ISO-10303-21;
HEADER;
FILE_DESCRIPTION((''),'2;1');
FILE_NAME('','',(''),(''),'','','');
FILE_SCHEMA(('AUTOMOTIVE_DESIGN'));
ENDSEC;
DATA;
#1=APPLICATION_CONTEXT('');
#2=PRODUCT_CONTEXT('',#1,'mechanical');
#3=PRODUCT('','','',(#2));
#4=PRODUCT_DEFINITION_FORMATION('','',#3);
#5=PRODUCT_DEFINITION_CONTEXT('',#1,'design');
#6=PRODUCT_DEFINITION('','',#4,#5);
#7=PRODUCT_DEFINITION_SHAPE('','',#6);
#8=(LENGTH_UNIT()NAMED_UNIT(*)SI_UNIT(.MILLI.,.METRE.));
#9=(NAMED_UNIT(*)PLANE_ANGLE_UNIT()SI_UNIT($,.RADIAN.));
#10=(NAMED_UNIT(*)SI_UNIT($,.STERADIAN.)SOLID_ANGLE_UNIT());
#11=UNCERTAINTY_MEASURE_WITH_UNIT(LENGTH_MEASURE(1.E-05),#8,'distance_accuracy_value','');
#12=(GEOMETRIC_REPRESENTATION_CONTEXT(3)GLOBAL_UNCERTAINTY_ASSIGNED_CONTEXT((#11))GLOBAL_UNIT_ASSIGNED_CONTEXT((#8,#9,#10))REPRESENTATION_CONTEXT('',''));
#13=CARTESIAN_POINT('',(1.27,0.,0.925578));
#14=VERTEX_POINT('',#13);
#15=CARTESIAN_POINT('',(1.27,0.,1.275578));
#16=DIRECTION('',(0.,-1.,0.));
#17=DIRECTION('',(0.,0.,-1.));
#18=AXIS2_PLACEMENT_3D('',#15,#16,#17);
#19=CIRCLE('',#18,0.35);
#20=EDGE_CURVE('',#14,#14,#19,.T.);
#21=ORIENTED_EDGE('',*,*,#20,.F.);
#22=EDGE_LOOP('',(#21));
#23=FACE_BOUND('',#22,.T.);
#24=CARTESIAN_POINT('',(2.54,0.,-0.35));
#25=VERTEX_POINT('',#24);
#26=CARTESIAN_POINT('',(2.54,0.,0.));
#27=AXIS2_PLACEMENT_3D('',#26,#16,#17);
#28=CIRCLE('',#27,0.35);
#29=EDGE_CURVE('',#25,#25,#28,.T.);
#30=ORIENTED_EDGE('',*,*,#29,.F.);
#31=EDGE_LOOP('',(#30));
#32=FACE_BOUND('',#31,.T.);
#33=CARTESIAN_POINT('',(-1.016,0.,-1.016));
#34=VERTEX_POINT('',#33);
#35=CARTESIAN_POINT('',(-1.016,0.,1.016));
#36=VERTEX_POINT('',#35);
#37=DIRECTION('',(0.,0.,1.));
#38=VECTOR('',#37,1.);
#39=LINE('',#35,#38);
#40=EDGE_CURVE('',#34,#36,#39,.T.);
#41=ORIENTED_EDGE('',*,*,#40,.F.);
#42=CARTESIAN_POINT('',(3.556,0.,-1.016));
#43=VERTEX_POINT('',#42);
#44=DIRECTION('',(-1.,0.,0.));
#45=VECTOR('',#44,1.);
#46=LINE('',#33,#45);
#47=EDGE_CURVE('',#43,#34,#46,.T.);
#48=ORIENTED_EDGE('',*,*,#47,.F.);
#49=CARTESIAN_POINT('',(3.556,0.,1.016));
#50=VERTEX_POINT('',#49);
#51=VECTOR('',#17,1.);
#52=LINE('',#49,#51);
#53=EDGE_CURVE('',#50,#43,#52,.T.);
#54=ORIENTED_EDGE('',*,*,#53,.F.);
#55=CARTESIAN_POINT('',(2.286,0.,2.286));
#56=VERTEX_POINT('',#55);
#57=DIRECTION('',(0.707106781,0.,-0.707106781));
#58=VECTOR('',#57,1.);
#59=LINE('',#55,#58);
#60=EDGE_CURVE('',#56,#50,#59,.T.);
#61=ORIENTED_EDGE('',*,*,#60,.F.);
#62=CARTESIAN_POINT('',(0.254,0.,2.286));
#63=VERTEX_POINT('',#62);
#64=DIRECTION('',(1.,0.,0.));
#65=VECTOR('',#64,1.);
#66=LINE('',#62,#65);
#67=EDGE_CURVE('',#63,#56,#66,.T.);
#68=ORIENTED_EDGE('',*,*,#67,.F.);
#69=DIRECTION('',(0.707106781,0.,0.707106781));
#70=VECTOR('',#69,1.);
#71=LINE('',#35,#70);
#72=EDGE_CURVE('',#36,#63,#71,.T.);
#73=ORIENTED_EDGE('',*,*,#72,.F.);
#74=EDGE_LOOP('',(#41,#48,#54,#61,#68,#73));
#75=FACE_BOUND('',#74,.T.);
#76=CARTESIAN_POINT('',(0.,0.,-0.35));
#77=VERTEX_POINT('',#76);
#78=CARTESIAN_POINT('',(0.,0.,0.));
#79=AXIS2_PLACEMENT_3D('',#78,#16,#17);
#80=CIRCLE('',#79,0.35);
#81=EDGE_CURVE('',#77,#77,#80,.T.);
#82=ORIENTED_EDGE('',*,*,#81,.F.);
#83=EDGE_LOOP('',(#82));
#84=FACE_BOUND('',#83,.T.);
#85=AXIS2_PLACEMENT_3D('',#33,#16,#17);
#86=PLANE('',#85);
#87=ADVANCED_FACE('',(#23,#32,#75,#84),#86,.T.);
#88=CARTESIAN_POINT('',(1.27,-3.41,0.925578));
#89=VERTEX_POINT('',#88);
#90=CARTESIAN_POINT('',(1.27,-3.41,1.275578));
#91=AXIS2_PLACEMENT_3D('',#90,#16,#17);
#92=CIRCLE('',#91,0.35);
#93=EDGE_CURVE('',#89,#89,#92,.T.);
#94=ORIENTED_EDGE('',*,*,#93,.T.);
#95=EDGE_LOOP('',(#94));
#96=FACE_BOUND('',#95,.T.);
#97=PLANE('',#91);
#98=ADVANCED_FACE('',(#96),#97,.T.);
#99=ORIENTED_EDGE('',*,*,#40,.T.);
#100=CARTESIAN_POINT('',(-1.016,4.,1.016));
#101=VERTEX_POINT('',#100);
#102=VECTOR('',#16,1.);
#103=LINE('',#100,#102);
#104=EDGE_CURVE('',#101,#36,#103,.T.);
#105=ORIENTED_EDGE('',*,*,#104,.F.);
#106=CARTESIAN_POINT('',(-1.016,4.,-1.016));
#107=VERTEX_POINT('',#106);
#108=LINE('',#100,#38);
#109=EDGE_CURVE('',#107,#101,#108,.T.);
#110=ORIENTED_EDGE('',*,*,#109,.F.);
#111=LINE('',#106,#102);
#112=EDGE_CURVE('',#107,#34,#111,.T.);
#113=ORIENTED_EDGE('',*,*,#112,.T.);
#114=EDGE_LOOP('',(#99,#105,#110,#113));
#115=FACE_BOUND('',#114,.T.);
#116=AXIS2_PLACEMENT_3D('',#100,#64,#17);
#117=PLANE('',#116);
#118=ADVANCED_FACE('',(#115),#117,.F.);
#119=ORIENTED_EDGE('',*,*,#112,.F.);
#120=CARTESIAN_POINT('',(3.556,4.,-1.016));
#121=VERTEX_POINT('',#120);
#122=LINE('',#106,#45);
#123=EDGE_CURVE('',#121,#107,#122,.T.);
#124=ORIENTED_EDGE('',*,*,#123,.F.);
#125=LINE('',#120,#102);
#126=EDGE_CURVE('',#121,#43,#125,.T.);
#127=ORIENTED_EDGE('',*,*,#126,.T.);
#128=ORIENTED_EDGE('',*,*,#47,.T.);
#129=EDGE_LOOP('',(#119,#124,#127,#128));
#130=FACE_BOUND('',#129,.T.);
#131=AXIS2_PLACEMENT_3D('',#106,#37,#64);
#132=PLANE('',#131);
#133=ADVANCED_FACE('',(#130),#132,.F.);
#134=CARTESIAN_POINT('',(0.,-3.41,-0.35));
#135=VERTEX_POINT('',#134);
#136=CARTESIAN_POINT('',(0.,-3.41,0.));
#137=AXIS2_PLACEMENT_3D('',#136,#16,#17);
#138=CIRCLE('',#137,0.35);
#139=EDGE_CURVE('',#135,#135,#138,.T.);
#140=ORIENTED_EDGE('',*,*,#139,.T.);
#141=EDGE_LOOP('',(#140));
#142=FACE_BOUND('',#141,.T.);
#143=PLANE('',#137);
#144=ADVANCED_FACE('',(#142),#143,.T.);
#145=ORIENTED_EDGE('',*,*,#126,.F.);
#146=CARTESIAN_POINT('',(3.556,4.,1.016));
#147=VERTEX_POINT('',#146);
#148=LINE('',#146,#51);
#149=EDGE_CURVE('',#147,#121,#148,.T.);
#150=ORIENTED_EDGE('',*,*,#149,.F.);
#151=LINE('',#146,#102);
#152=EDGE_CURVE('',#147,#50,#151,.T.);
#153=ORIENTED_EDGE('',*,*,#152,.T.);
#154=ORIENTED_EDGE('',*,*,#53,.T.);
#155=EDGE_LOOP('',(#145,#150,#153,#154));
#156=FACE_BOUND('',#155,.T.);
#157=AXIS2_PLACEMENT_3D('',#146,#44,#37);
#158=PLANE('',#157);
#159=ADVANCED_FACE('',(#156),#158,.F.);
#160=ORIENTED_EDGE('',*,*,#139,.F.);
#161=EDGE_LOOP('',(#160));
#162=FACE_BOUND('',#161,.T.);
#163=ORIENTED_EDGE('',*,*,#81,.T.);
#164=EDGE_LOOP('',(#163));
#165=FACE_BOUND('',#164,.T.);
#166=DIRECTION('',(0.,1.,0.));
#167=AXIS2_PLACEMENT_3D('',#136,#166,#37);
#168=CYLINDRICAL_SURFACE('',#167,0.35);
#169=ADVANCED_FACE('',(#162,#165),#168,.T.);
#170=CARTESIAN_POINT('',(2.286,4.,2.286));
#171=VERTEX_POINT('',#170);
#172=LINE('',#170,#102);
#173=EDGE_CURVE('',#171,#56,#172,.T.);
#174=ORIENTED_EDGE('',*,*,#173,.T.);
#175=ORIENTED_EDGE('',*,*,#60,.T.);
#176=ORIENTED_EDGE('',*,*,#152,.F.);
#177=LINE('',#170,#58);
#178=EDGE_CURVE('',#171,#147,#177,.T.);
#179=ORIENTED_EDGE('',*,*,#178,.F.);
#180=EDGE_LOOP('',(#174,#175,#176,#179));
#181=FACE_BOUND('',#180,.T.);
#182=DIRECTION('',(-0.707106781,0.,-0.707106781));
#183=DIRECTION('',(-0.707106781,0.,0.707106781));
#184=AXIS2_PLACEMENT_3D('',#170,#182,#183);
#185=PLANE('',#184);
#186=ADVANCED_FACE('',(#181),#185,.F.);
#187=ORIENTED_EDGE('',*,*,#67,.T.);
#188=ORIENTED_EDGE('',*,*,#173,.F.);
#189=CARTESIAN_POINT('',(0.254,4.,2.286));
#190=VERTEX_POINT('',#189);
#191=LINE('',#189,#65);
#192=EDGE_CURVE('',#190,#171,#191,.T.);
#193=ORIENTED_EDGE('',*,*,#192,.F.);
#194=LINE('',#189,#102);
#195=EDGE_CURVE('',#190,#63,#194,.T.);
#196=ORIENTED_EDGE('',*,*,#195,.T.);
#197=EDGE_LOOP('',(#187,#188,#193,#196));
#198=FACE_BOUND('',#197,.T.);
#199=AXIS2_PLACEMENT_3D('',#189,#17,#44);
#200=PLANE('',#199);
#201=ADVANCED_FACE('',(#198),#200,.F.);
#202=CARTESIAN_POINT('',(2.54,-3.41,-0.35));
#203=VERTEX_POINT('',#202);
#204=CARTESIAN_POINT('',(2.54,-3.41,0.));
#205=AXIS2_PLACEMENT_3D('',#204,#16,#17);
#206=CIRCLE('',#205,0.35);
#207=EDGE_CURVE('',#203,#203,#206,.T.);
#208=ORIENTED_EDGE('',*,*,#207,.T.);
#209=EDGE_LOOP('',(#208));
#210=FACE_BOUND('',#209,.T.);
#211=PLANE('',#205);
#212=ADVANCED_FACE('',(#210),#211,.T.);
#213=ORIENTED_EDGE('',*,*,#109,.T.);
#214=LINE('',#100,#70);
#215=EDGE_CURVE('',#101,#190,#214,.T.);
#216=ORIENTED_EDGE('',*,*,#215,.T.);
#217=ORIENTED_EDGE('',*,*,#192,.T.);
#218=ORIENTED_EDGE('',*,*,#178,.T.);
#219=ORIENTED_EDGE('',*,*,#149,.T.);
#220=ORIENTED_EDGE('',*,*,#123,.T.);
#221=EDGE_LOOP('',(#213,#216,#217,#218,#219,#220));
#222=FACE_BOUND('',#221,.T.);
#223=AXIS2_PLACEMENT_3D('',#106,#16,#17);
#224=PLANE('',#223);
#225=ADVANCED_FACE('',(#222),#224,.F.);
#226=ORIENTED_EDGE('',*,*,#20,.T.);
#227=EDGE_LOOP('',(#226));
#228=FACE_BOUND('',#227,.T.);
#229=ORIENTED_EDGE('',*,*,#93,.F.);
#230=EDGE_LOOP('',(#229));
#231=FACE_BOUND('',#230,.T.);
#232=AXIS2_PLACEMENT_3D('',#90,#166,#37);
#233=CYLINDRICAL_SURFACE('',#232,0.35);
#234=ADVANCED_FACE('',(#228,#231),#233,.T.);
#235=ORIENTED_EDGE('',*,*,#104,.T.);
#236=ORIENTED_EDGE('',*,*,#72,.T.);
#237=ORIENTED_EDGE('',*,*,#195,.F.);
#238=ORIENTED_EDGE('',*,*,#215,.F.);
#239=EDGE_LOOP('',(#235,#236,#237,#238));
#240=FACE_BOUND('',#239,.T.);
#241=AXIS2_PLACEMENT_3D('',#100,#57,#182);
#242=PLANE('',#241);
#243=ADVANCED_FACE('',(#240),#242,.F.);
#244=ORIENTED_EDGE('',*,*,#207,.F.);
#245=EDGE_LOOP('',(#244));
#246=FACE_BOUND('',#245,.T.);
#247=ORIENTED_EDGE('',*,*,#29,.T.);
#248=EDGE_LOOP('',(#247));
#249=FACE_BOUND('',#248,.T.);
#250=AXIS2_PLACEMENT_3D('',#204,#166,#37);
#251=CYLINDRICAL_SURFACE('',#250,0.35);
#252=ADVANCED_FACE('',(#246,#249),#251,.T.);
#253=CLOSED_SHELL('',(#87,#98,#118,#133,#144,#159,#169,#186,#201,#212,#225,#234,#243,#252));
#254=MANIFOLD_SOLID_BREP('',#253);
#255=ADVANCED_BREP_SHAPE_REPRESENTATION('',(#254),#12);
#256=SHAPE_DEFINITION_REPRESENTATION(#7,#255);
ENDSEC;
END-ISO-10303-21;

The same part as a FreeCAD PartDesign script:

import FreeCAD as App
import Part
import Sketcher
from FreeCAD import Vector
Q = App.Units.Quantity

doc = App.newDocument("Part")
body = doc.addObject("PartDesign::Body", "Body")

# Sketch on XZ plane
sketch1 = body.newObject("Sketcher::SketchObject", "Sketch")
sketch1.AttachmentSupport = (doc.getObject("XZ_Plane"), [""])
sketch1.MapMode = "FlatFace"
sketch1.addGeometry(Part.LineSegment(Vector(-1, 1, 0), Vector(0.3, 2.3, 0)), False)
sketch1.addGeometry(Part.LineSegment(Vector(0.3, 2.3, 0), Vector(2.3, 2.3, 0)), False)
sketch1.addGeometry(Part.LineSegment(Vector(2.3, 2.3, 0), Vector(3.6, 1, 0)), False)
sketch1.addGeometry(Part.LineSegment(Vector(3.6, 1, 0), Vector(3.6, -1, 0)), False)
sketch1.addGeometry(Part.LineSegment(Vector(3.6, -1, 0), Vector(-1, -1, 0)), False)
sketch1.addGeometry(Part.LineSegment(Vector(-1, -1, 0), Vector(-1, 1, 0)), False)
sketch1.addConstraint(Sketcher.Constraint("Coincident", 0, 2, 1, 1))
sketch1.addConstraint(Sketcher.Constraint("Coincident", 1, 2, 2, 1))
sketch1.addConstraint(Sketcher.Constraint("Coincident", 2, 2, 3, 1))
sketch1.addConstraint(Sketcher.Constraint("Coincident", 3, 2, 4, 1))
sketch1.addConstraint(Sketcher.Constraint("Coincident", 4, 2, 5, 1))
sketch1.addConstraint(Sketcher.Constraint("Coincident", 5, 2, 0, 1))
sketch1.addConstraint(Sketcher.Constraint("Horizontal", 1))
sketch1.addConstraint(Sketcher.Constraint("Vertical", 3))
sketch1.addConstraint(Sketcher.Constraint("Horizontal", 4))
sketch1.addConstraint(Sketcher.Constraint("Vertical", 5))
sketch1.addConstraint(Sketcher.Constraint("Perpendicular", 0, 2))
sketch1.addConstraint(Sketcher.Constraint("Horizontal", 2, 2, 5, 2))
sketch1.addConstraint(Sketcher.Constraint("Equal", 1, 3))
sketch1.addConstraint(Sketcher.Constraint("Equal", 0, 2))
sketch1.addConstraint(Sketcher.Constraint("DistanceX", 1, 1, 1, 2, Q("2.032 mm")))
sketch1.addConstraint(Sketcher.Constraint("DistanceX", 4, 2, 4, 1, Q("4.572 mm")))
sketch1.addConstraint(Sketcher.Constraint("DistanceX", -1, 1, 0, 2, Q("0.254 mm")))
sketch1.addConstraint(Sketcher.Constraint("DistanceY", -1, 1, 0, 2, Q("2.286 mm")))
pad1 = body.newObject("PartDesign::Pad", "Pad")
pad1.Profile = sketch1
pad1.Length = 4
pad1.Reversed = True

# Sketch on XZ plane
sketch2 = body.newObject("Sketcher::SketchObject", "Sketch001")
sketch2.AttachmentSupport = (doc.getObject("XZ_Plane"), [""])
sketch2.MapMode = "FlatFace"
sketch2.addGeometry(Part.Circle(Vector(0, 0, 0), Vector(0, 0, 1), 0.35), False)
sketch2.addGeometry(Part.Circle(Vector(2.54, 0, 0), Vector(0, 0, 1), 0.35), False)
sketch2.addGeometry(Part.Circle(Vector(1.27, 1.28, 0), Vector(0, 0, 1), 0.35), False)
sketch2.addConstraint(Sketcher.Constraint("Coincident", 0, 3, -1, 1))
sketch2.addConstraint(Sketcher.Constraint("Equal", 0, 1))
sketch2.addConstraint(Sketcher.Constraint("Equal", 1, 2))
sketch2.addConstraint(Sketcher.Constraint("PointOnObject", 1, 3, -1))
sketch2.addConstraint(Sketcher.Constraint("Diameter", 0, Q("0.7 mm")))
sketch2.addConstraint(Sketcher.Constraint("DistanceX", -1, 1, 1, 3, Q("2.54 mm")))
sketch2.addConstraint(Sketcher.Constraint("DistanceX", -1, 1, 2, 3, Q("1.27 mm")))
sketch2.addConstraint(Sketcher.Constraint("DistanceY", -1, 1, 2, 3, Q("1.275578 mm")))
pad2 = body.newObject("PartDesign::Pad", "Pad001")
pad2.Profile = sketch2
pad2.Length = 3.41

doc.recompute()
